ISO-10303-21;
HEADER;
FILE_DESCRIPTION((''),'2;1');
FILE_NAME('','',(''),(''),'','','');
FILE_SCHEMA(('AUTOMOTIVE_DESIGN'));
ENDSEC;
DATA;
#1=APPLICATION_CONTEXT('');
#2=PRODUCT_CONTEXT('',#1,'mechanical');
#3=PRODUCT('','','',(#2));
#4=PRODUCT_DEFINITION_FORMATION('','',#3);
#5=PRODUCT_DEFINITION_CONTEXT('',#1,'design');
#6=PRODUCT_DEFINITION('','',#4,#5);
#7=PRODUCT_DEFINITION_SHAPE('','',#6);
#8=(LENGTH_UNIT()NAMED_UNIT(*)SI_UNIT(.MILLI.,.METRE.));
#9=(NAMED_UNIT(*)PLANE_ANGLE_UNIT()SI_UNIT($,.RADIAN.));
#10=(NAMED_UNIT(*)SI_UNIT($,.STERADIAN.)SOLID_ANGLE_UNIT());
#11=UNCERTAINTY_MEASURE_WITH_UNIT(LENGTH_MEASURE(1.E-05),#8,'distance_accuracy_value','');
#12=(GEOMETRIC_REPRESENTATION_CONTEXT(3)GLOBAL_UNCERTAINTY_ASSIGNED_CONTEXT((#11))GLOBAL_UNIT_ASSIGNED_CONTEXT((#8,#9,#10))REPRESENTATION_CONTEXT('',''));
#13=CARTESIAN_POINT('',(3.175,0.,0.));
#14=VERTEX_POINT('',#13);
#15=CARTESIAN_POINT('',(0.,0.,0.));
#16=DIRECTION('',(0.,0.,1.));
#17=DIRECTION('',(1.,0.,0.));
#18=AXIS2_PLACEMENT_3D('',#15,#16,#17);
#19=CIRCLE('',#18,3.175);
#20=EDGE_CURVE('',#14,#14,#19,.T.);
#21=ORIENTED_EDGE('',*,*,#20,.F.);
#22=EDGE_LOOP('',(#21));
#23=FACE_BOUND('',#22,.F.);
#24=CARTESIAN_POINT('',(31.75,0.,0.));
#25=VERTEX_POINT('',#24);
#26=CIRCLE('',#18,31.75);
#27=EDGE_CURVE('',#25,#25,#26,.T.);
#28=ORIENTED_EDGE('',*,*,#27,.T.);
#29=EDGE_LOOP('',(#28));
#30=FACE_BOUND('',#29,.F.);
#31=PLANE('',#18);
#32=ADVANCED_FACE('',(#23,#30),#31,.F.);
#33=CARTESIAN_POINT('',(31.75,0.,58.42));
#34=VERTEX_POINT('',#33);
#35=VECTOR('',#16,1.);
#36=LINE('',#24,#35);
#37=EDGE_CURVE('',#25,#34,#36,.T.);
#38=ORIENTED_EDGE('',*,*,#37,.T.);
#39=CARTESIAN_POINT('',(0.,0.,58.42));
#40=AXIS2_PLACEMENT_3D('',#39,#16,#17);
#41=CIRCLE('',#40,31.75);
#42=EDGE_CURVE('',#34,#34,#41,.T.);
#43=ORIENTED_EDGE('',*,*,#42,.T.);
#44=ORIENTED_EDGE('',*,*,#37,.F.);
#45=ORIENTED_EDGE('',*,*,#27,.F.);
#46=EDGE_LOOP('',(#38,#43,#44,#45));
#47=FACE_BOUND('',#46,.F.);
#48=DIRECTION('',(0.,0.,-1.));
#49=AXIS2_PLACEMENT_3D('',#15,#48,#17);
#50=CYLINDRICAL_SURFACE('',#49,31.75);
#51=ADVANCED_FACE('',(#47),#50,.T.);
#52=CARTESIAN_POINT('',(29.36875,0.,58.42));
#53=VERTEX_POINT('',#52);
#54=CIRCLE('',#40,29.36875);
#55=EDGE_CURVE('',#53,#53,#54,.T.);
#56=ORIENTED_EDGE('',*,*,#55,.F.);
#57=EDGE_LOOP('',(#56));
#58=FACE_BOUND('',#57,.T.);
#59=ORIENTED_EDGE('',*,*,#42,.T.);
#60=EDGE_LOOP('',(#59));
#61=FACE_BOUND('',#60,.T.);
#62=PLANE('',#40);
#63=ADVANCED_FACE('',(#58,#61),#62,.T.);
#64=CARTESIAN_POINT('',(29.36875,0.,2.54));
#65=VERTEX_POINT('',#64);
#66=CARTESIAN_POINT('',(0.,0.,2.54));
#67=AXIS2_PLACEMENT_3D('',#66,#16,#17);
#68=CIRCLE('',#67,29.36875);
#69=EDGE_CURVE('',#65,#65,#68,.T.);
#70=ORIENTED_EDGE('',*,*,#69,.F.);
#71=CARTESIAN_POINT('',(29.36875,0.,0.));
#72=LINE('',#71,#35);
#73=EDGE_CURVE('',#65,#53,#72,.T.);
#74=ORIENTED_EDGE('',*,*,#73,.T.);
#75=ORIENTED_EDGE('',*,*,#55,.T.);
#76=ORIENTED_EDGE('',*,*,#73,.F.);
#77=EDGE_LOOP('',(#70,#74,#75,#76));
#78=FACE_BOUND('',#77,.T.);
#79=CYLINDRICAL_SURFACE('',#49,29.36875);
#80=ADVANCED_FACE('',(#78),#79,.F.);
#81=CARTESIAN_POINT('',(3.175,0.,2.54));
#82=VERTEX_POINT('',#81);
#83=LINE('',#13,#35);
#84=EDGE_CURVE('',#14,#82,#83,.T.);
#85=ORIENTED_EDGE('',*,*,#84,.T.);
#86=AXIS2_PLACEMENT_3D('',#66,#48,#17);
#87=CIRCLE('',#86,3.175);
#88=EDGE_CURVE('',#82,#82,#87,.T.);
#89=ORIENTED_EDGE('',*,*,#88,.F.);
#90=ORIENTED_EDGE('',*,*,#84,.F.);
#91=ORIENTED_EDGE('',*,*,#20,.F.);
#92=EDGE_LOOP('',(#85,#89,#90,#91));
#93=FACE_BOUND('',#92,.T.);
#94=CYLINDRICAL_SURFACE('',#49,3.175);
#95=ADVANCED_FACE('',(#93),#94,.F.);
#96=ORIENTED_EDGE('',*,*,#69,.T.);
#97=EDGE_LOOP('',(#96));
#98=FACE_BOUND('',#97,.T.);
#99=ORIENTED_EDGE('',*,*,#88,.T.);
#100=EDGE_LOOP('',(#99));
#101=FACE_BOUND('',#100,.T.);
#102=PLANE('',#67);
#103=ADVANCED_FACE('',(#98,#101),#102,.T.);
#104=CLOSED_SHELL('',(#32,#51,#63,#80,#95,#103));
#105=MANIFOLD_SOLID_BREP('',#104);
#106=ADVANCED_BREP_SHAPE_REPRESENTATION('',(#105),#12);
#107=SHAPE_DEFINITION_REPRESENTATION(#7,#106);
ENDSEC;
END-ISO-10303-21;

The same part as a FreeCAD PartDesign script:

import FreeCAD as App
import Part
import Sketcher
Q = App.Units.Quantity

doc = App.newDocument("Part")
body = doc.addObject("PartDesign::Body", "Body")

# Sketch on XY plane
sketch1 = body.newObject("Sketcher::SketchObject", "Sketch")
sketch1.AttachmentSupport = (doc.getObject("XY_Plane"), [""])
sketch1.MapMode = "FlatFace"
sketch1.addGeometry(Part.Circle(App.Vector(0, 0, 0), App.Vector(0, 0, 1), 32), False)
sketch1.addGeometry(Part.Circle(App.Vector(0, 0, 0), App.Vector(0, 0, 1), 29), False)
sketch1.addConstraint(Sketcher.Constraint("Coincident", 0, 3, -1, 1))
sketch1.addConstraint(Sketcher.Constraint("Coincident", 1, 3, -1, 1))
sketch1.addConstraint(Sketcher.Constraint("Diameter", 0, Q("2.5 in")))
sketch1.addConstraint(Sketcher.Constraint("Diameter", 1, Q("2.3125 in")))
pad1 = body.newObject("PartDesign::Pad", "Pad")
pad1.Profile = sketch1
pad1.Length = Q("2.3 in")

# Sketch on XY plane
sketch2 = body.newObject("Sketcher::SketchObject", "Sketch001")
sketch2.AttachmentSupport = (doc.getObject("XY_Plane"), [""])
sketch2.MapMode = "FlatFace"
sketch2.addGeometry(Part.Circle(App.Vector(0, 0, 0), App.Vector(0, 0, 1), 29), False)
sketch2.addConstraint(Sketcher.Constraint("Coincident", 0, 3, -1, 1))
sketch2.addConstraint(Sketcher.Constraint("Diameter", 0, Q("2.3125 in")))
pad2 = body.newObject("PartDesign::Pad", "Pad001")
pad2.Profile = sketch2
pad2.Length = Q("0.1 in")

# Sketch on XY plane
sketch3 = body.newObject("Sketcher::SketchObject", "Sketch002")
sketch3.AttachmentSupport = (doc.getObject("XY_Plane"), [""])
sketch3.MapMode = "FlatFace"
sketch3.addGeometry(Part.Circle(App.Vector(0, 0, 0), App.Vector(0, 0, 1), 3.2), False)
sketch3.addConstraint(Sketcher.Constraint("Coincident", 0, 3, -1, 1))
sketch3.addConstraint(Sketcher.Constraint("Diameter", 0, Q("0.25 in")))
pocket1 = body.newObject("PartDesign::Pocket", "Pocket")
pocket1.Profile = sketch3
pocket1.Type = "ThroughAll"
pocket1.Reversed = True

doc.recompute()
